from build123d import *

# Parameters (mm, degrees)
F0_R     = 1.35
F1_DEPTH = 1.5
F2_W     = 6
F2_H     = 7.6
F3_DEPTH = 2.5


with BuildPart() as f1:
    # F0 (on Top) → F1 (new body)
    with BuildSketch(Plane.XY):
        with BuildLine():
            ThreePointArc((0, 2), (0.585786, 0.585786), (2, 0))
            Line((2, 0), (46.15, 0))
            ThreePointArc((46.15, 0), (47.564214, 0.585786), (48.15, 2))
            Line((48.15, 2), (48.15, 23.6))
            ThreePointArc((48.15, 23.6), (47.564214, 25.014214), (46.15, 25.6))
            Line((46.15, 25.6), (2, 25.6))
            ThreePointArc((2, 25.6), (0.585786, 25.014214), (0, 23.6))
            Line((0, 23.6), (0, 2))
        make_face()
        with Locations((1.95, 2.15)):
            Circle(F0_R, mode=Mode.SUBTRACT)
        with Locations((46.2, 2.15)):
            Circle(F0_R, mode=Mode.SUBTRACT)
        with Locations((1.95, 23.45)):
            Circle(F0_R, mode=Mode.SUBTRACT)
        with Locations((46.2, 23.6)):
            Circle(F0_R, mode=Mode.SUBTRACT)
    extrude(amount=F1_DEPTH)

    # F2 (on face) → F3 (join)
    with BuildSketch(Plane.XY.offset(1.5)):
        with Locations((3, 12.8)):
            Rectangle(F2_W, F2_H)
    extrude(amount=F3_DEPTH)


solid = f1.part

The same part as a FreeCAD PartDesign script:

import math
import FreeCAD as App
import Part
import Sketcher

V = App.Vector


def add_polygon(sketch, points):
    """Adds a closed chain of lines whose ends are joined by coincident constraints."""
    first, n = sketch.GeometryCount, len(points)
    for a, b in zip(points, points[1:] + points[:1]):
        sketch.addGeometry(Part.LineSegment(App.Vector(*a, 0), App.Vector(*b, 0)), False)
    for i in range(n):
        sketch.addConstraint(Sketcher.Constraint("Coincident", first + i, 2, first + (i + 1) % n, 1))

doc = App.newDocument("Part")
body = doc.addObject("PartDesign::Body", "Body")

sketch1 = body.newObject("Sketcher::SketchObject", "Sketch")
sketch1.AttachmentSupport = (doc.getObject("XY_Plane"), [""])
sketch1.MapMode = "FlatFace"
sketch1.addGeometry([
    Part.ArcOfCircle(Part.Circle(V(2, 2, 0), V(0, 0, 1), 2), math.radians(180), math.radians(270)),
    Part.LineSegment(V(2, 0, 0), V(46.1, 0, 0)),
    Part.ArcOfCircle(Part.Circle(V(46.2, 2, 0), V(0, 0, 1), 2), math.radians(-90), math.radians(0)),
    Part.LineSegment(V(48.1, 2, 0), V(48.1, 23.6, 0)),
    Part.ArcOfCircle(Part.Circle(V(46.2, 23.6, 0), V(0, 0, 1), 2), math.radians(0), math.radians(90)),
    Part.LineSegment(V(46.1, 25.6, 0), V(2, 25.6, 0)),
    Part.ArcOfCircle(Part.Circle(V(2, 23.6, 0), V(0, 0, 1), 2), math.radians(90), math.radians(180)),
    Part.LineSegment(V(0, 23.6, 0), V(0, 2, 0)),
    Part.Circle(V(1.9, 2.1, 0), V(0, 0, 1), 1.4),
    Part.Circle(V(46.2, 2.1, 0), V(0, 0, 1), 1.4),
    Part.Circle(V(1.9, 23.4, 0), V(0, 0, 1), 1.4),
    Part.Circle(V(46.2, 23.6, 0), V(0, 0, 1), 1.4),
], False)
sketch1.addConstraint([
    Sketcher.Constraint("Tangent", 0, 2, 1, 1),
    Sketcher.Constraint("Tangent", 1, 2, 2, 1),
    Sketcher.Constraint("Tangent", 2, 2, 3, 1),
    Sketcher.Constraint("Tangent", 3, 2, 4, 1),
    Sketcher.Constraint("Tangent", 4, 2, 5, 1),
    Sketcher.Constraint("Tangent", 5, 2, 6, 1),
    Sketcher.Constraint("Tangent", 6, 2, 7, 1),
    Sketcher.Constraint("Tangent", 7, 2, 0, 1),
    Sketcher.Constraint("Horizontal", 1),
    Sketcher.Constraint("Vertical", 3),
    Sketcher.Constraint("Horizontal", 5),
    Sketcher.Constraint("Vertical", 7),
    Sketcher.Constraint("Equal", 0, 2),
    Sketcher.Constraint("Equal", 2, 4),
    Sketcher.Constraint("Equal", 4, 6),
    Sketcher.Constraint("Equal", 8, 9),
    Sketcher.Constraint("Equal", 9, 10),
    Sketcher.Constraint("Equal", 10, 11),
    Sketcher.Constraint("PointOnObject", 0, 2, -1),
    Sketcher.Constraint("PointOnObject", 6, 2, -2),
    Sketcher.Constraint("Horizontal", 8, 3, 9, 3),
    Sketcher.Constraint("Horizontal", 6, 3, 11, 3),
    Sketcher.Constraint("Vertical", 8, 3, 10, 3),
    Sketcher.Constraint("Vertical", 9, 3, 11, 3),
    Sketcher.Constraint("Radius", 0, 1.999999),
    Sketcher.Constraint("Diameter", 8, 2.7),
    Sketcher.Constraint("DistanceY", 3, 1, 3, 2, 21.6),
    Sketcher.Constraint("DistanceX", 1, 1, 1, 2, 44.15),
    Sketcher.Constraint("DistanceX", -1, 1, 9, 3, 46.2),
    Sketcher.Constraint("DistanceX", 8, 3, 2, 3, 44.200001),
    Sketcher.Constraint("DistanceY", 8, 3, 10, 3, 21.3),
    Sketcher.Constraint("DistanceY", -1, 1, 8, 3, 2.15),
])
pad1 = body.newObject("PartDesign::Pad", "Pad")
pad1.Profile = sketch1
pad1.Length = 1.5

sketch2 = body.newObject("Sketcher::SketchObject", "Sketch001")
sketch2.AttachmentSupport = (doc.getObject("XY_Plane"), [""])
sketch2.MapMode = "FlatFace"
sketch2.AttachmentOffset = App.Placement(V(0, 0, 1.5), App.Rotation())
add_polygon(sketch2, [(0, 17), (0, 9), (6, 9), (6, 17)])
sketch2.addConstraint([
    Sketcher.Constraint("Vertical", 0),
    Sketcher.Constraint("Horizontal", 1),
    Sketcher.Constraint("Vertical", 2),
    Sketcher.Constraint("Horizontal", 3),
    Sketcher.Constraint("PointOnObject", 0, 2, -2),
    Sketcher.Constraint("DistanceX", 1, 1, 1, 2, 6.0),
    Sketcher.Constraint("DistanceY", 0, 2, 0, 1, 7.6),
    Sketcher.Constraint("DistanceY", -1, 1, 0, 2, 9.0),
])
pad2 = body.newObject("PartDesign::Pad", "Pad001")
pad2.Profile = sketch2
pad2.Length = 2.5

doc.recompute()
